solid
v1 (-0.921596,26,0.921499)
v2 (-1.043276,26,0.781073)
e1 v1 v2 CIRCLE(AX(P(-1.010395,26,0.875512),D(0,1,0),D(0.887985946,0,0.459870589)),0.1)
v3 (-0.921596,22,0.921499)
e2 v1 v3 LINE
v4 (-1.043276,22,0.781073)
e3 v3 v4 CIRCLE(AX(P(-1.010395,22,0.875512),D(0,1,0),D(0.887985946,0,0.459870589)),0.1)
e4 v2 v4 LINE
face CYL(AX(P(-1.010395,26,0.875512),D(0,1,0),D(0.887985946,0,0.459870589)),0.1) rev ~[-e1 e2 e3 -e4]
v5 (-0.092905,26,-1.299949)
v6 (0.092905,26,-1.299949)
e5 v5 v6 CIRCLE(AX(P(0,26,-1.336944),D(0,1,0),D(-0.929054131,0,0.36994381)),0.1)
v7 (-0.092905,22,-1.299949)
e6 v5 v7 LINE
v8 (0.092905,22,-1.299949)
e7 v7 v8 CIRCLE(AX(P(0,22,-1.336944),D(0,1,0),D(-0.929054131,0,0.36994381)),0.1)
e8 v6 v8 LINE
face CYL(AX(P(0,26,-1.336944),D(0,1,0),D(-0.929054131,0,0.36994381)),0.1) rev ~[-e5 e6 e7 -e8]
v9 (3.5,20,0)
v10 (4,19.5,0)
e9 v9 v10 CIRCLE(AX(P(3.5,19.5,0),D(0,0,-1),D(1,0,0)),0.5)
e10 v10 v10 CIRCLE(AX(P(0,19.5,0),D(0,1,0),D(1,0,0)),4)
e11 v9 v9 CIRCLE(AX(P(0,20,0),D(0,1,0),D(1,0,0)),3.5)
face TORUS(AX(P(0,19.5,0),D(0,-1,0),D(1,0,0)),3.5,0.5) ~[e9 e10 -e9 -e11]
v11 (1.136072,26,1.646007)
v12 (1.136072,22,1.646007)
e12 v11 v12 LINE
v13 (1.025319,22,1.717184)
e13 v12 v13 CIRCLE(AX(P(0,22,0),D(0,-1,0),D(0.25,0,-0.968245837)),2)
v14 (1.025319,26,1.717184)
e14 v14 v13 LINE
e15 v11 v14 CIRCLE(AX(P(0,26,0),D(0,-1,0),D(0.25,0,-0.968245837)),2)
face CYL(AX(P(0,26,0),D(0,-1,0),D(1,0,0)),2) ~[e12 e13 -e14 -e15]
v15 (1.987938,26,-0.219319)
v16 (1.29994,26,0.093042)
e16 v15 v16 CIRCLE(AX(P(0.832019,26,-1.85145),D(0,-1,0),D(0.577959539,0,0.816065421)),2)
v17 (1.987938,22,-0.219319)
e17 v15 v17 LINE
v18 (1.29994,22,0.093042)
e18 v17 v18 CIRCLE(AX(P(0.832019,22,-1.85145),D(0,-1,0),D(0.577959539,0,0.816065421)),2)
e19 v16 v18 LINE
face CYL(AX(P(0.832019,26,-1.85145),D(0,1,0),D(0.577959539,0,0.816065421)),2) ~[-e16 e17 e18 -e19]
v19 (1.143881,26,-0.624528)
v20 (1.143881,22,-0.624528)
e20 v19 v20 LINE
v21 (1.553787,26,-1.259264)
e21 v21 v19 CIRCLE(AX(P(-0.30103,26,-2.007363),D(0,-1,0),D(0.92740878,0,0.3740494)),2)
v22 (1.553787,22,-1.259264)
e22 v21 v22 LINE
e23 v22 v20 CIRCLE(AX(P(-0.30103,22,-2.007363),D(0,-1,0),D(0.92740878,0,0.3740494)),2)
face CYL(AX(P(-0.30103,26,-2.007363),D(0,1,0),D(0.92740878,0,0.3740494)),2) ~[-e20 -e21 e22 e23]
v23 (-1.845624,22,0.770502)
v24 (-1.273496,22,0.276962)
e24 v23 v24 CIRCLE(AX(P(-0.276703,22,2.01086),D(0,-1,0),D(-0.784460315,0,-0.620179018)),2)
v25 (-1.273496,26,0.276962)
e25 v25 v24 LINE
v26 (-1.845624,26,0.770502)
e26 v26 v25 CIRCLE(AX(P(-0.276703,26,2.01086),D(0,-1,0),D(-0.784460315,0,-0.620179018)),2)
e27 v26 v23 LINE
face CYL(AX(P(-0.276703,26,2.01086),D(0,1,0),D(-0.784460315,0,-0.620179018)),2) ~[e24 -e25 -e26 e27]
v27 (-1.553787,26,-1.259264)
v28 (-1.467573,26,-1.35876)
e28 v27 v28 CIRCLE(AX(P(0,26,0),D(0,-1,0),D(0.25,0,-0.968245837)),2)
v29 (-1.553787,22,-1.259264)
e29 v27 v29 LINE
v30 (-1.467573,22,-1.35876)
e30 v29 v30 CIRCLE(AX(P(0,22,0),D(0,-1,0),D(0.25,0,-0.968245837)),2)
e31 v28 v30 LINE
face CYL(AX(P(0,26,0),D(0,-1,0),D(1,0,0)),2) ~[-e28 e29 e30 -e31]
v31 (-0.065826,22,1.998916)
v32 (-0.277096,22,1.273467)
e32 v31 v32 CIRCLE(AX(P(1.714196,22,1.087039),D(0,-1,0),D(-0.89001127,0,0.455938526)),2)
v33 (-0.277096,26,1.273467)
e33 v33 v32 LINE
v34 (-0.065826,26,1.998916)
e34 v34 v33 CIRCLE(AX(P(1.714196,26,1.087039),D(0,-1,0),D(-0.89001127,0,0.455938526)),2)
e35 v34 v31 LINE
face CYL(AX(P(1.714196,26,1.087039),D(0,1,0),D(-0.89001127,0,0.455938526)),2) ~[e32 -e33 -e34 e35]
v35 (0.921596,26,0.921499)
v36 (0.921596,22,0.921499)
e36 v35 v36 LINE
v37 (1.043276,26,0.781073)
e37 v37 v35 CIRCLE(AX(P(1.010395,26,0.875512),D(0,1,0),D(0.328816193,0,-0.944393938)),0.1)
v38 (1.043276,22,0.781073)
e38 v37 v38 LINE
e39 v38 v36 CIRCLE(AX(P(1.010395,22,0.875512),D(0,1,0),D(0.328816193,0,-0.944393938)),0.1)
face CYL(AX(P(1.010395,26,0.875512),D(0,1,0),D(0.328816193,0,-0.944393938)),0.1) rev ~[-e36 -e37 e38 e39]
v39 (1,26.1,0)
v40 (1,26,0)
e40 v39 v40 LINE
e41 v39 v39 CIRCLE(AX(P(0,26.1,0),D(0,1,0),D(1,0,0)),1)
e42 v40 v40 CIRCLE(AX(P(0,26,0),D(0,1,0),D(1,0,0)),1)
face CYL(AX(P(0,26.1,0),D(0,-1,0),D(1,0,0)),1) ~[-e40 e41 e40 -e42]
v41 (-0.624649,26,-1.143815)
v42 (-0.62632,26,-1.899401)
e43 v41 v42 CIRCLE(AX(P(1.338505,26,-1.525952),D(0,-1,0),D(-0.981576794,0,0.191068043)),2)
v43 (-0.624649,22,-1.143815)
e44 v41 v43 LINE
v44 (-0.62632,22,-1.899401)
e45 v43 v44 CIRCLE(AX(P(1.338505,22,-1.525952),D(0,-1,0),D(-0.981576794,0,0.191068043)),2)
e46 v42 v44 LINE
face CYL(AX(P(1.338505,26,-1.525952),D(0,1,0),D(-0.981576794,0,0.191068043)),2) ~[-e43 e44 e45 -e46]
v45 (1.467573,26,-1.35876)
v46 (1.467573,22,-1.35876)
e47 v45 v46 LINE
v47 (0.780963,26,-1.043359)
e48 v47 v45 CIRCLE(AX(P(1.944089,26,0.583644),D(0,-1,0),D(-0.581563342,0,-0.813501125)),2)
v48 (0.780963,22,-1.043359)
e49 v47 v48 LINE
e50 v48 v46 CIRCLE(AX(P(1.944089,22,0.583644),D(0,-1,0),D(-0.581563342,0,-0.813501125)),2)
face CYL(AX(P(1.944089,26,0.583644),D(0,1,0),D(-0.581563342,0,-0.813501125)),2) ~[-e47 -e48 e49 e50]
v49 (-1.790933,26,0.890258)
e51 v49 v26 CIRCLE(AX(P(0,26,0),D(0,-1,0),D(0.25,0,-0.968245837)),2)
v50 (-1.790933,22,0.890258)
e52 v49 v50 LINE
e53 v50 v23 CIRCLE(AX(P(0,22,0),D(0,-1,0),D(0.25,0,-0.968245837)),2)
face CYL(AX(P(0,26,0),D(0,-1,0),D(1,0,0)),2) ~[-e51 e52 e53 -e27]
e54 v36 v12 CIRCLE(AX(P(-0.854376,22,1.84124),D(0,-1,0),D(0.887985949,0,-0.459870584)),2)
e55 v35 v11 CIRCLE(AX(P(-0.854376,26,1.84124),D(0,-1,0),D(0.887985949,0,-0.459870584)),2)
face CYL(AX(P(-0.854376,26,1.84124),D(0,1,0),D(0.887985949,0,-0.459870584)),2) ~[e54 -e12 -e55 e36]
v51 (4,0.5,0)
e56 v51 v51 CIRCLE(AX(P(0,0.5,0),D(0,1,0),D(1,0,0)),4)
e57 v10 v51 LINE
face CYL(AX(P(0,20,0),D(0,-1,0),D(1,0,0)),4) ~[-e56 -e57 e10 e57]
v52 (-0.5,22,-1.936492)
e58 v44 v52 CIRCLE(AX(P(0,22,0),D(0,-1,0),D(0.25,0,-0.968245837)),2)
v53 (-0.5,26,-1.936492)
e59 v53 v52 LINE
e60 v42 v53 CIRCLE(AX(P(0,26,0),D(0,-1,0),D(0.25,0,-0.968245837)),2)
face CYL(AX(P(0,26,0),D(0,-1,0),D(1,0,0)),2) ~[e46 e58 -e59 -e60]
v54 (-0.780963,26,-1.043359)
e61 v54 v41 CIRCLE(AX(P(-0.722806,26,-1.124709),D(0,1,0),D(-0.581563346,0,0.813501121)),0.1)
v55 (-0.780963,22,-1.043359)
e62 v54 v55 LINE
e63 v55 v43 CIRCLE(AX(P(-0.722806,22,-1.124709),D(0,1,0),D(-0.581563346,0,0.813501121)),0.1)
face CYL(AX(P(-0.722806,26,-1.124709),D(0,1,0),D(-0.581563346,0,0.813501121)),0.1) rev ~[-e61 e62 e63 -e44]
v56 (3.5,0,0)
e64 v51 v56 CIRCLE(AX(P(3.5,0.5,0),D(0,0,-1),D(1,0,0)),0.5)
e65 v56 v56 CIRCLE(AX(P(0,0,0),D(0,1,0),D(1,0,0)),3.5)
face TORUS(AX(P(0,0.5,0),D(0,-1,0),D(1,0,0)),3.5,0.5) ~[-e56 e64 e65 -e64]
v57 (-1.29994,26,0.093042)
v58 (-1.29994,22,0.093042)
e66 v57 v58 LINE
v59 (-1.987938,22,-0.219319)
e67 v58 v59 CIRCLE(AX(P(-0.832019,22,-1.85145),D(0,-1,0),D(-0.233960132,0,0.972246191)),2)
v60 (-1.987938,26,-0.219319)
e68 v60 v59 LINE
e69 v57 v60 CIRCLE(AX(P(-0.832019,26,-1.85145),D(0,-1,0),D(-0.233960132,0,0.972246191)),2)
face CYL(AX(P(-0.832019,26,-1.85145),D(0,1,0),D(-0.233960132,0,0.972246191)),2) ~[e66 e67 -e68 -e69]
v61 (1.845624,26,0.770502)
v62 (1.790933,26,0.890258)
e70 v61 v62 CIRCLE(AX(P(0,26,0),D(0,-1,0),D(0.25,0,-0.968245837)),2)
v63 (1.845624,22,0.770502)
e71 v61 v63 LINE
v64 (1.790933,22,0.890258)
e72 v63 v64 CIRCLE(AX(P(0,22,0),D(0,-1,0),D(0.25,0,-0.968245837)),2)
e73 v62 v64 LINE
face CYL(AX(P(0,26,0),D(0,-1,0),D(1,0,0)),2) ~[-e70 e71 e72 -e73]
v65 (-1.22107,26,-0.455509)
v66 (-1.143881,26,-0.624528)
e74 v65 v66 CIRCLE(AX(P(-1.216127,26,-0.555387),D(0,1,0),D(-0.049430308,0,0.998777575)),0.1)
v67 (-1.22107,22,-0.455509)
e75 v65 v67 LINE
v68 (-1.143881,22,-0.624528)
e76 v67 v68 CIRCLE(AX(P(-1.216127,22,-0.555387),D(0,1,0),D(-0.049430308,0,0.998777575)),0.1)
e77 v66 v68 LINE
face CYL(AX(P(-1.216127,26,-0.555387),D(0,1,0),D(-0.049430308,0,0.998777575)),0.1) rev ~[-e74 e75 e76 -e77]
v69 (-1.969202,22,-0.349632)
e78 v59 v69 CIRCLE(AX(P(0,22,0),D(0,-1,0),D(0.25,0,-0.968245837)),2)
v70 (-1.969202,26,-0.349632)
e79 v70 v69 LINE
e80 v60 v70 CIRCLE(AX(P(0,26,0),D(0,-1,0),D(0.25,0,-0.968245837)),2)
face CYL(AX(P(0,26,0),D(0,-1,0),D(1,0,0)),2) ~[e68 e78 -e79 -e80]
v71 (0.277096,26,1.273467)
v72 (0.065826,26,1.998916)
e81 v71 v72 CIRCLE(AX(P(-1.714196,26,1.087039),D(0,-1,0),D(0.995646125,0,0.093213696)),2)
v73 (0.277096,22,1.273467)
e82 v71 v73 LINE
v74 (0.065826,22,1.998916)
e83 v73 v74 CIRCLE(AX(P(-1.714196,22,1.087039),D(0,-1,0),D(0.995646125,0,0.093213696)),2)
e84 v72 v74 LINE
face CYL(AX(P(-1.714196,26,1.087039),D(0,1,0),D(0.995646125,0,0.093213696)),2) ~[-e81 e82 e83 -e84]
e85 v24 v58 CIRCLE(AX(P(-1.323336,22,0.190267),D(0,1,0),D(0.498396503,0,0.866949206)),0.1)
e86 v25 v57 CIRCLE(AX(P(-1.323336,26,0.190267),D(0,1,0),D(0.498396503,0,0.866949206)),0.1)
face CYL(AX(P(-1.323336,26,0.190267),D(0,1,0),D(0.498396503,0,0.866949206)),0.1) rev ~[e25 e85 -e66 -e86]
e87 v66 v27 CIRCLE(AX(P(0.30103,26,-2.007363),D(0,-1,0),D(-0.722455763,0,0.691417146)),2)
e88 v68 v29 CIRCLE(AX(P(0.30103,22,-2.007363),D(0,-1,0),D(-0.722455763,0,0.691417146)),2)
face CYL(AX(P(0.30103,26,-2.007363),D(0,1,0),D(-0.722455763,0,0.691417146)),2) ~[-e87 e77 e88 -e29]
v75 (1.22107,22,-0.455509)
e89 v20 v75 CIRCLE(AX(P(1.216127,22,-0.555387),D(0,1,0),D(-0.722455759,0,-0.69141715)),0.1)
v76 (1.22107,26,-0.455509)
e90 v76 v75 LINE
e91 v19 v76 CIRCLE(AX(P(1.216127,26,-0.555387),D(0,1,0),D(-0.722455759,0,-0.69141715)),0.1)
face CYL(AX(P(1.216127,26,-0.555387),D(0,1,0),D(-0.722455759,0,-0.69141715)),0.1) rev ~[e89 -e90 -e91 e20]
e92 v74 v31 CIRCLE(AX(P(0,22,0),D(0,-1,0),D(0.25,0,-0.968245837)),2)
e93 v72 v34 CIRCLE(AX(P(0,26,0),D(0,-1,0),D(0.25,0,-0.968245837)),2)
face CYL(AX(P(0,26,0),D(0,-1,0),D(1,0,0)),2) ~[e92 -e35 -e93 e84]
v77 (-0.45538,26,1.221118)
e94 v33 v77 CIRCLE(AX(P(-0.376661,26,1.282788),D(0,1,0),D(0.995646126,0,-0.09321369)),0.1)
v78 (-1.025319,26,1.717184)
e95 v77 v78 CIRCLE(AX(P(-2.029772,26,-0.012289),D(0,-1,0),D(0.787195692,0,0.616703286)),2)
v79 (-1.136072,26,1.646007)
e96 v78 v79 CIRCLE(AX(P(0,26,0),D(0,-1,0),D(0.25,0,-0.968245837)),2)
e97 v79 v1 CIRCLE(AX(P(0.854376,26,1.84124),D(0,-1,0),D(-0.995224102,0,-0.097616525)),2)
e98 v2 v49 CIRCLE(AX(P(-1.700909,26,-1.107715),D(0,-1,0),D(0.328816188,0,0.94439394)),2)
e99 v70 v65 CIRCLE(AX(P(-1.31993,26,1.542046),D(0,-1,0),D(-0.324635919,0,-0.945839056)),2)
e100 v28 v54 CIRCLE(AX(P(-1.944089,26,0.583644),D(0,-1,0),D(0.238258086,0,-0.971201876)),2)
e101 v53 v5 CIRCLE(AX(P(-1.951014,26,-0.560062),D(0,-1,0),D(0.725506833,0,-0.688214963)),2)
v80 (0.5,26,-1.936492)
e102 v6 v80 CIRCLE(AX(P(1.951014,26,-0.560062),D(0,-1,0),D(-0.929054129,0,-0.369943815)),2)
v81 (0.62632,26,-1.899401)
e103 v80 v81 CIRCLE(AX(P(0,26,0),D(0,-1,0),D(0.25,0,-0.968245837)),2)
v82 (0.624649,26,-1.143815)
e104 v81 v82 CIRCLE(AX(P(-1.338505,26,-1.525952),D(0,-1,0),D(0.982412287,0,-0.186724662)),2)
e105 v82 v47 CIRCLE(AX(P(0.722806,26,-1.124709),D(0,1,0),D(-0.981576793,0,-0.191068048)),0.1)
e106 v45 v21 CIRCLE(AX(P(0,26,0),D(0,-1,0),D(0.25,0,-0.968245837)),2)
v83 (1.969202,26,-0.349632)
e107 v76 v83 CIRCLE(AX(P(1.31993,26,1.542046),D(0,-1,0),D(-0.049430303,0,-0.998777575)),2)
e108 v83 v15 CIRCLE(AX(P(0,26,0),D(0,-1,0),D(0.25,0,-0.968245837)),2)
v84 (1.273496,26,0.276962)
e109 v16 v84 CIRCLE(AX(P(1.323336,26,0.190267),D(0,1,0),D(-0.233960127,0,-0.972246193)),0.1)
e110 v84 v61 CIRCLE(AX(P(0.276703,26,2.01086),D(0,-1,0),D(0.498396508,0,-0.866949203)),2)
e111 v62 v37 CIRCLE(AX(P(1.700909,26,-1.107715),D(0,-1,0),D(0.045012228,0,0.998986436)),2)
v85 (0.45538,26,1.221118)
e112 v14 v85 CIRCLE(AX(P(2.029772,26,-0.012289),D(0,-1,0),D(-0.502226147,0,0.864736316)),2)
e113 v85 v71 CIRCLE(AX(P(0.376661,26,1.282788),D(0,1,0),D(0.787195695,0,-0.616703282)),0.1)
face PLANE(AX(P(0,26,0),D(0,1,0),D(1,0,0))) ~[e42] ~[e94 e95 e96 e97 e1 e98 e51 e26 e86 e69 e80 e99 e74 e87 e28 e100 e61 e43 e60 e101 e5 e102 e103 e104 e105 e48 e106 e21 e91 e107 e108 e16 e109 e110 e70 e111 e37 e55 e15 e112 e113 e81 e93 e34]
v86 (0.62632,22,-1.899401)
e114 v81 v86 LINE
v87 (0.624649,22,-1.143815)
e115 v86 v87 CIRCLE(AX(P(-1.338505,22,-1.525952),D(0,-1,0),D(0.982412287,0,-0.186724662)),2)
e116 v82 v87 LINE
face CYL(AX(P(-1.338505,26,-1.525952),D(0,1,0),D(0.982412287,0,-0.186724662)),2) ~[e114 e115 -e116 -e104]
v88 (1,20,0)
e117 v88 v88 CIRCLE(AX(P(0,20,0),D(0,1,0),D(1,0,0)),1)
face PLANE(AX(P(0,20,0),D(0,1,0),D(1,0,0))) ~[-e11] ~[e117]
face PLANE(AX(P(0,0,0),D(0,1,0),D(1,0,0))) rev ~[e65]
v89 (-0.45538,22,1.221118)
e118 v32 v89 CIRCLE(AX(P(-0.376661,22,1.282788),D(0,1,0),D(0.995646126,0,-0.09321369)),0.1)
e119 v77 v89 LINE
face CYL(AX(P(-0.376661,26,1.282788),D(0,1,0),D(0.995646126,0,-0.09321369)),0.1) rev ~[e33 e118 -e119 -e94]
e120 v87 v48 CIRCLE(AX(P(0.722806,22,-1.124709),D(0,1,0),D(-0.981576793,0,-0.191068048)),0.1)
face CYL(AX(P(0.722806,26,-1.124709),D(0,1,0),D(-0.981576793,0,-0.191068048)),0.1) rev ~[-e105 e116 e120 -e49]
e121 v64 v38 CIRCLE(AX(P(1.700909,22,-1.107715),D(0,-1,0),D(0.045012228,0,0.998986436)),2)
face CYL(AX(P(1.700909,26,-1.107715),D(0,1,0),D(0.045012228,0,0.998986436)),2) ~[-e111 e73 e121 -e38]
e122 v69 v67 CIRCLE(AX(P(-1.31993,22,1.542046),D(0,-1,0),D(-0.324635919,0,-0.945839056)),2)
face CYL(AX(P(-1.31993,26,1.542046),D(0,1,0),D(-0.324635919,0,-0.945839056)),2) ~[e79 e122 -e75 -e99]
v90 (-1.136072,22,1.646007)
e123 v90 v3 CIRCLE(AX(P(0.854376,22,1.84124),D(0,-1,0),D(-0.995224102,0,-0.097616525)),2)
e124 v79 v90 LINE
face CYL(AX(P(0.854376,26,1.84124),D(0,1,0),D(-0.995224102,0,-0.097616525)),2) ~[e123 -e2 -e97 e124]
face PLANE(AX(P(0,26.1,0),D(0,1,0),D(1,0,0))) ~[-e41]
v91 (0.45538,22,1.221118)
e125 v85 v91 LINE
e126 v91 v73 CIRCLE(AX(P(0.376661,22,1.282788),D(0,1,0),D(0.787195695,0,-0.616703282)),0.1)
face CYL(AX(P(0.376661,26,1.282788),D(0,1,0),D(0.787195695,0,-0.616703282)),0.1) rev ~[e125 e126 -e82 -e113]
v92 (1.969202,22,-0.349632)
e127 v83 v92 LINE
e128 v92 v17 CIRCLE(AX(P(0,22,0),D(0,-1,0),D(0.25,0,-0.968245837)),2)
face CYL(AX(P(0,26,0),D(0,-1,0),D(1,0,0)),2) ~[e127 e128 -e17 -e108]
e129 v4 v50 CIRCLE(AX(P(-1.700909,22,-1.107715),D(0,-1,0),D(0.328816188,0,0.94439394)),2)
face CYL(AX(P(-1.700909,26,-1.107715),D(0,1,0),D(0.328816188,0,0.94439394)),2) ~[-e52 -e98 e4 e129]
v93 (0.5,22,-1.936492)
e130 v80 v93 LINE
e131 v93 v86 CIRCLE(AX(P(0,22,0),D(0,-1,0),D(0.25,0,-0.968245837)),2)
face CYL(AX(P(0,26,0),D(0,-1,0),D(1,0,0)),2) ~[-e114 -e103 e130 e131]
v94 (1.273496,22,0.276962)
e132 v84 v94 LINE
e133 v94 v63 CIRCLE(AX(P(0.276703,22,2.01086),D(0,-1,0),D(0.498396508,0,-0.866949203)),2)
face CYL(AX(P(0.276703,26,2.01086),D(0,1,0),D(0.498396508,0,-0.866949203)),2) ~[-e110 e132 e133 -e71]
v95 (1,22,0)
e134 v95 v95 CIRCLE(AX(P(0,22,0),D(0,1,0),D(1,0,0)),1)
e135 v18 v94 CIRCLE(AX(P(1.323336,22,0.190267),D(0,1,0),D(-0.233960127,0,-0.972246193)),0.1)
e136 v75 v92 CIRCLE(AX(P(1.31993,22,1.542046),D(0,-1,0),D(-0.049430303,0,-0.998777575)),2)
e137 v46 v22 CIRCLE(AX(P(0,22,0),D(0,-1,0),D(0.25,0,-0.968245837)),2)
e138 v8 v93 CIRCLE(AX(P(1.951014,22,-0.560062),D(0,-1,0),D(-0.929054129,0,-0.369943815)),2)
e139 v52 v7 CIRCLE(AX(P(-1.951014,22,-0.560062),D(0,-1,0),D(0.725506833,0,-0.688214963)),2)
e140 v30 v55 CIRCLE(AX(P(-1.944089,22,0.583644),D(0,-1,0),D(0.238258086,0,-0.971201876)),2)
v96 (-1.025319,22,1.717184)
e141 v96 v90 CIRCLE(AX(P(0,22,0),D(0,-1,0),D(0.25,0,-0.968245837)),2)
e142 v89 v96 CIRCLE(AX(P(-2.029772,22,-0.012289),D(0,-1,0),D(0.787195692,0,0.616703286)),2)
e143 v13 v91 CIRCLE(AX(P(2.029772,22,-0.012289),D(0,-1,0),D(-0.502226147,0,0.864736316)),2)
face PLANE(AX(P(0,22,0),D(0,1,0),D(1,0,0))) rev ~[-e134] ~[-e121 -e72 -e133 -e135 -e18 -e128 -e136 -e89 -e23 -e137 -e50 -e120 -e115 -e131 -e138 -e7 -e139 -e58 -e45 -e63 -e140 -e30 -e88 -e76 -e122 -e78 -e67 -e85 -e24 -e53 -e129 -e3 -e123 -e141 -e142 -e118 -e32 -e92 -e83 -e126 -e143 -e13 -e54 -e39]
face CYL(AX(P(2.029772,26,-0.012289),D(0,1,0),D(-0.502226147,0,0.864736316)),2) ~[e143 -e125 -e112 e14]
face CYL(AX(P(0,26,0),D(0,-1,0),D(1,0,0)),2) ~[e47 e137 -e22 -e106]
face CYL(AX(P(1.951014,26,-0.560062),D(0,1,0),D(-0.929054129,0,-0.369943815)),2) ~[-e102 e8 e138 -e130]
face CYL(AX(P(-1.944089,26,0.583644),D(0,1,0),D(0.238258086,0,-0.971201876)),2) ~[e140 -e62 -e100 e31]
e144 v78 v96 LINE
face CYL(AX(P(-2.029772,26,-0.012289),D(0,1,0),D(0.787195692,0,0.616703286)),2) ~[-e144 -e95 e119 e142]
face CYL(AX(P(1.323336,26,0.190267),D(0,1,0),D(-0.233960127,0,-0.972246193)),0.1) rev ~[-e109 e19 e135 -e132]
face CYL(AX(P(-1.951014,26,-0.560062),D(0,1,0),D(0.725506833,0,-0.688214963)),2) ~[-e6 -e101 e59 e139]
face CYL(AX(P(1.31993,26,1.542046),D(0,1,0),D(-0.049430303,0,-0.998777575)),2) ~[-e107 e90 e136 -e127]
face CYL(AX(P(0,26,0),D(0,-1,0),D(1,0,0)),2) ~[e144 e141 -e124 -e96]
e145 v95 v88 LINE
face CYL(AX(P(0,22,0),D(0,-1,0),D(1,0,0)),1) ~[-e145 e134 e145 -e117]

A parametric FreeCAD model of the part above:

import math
import FreeCAD as App
import Part
import Sketcher

V = App.Vector


def edges_at(feature, points):
    """Names of the edges that pass closest to the given points."""
    edges = feature.Shape.Edges
    near = lambda p: min(range(len(edges)), key=lambda i: edges[i].distToShape(Part.Vertex(*p))[0])
    return sorted({f"Edge{near(p) + 1}" for p in points})

doc = App.newDocument("Part")
body = doc.addObject("PartDesign::Body", "Body")

sketch1 = body.newObject("Sketcher::SketchObject", "Sketch")
sketch1.AttachmentSupport = (doc.getObject("XY_Plane"), [""])
sketch1.MapMode = "FlatFace"
sketch1.addGeometry([
    Part.LineSegment(V(0, 26.1, 0), V(0, 0, 0)),
    Part.LineSegment(V(0, 0, 0), V(4, 0, 0)),
    Part.LineSegment(V(4, 0, 0), V(4, 20, 0)),
    Part.LineSegment(V(4, 20, 0), V(1, 20, 0)),
    Part.LineSegment(V(1, 20, 0), V(1, 22, 0)),
    Part.LineSegment(V(1, 22, 0), V(2, 22, 0)),
    Part.LineSegment(V(2, 22, 0), V(2, 26, 0)),
    Part.LineSegment(V(2, 26, 0), V(1, 26, 0)),
    Part.LineSegment(V(1, 26, 0), V(1, 26.1, 0)),
    Part.LineSegment(V(1, 26.1, 0), V(0, 26.1, 0)),
], False)
sketch1.addConstraint([
    Sketcher.Constraint("Coincident", 0, 2, 1, 1),
    Sketcher.Constraint("Coincident", 1, 2, 2, 1),
    Sketcher.Constraint("Coincident", 2, 2, 3, 1),
    Sketcher.Constraint("Coincident", 3, 2, 4, 1),
    Sketcher.Constraint("Coincident", 4, 2, 5, 1),
    Sketcher.Constraint("Coincident", 5, 2, 6, 1),
    Sketcher.Constraint("Coincident", 6, 2, 7, 1),
    Sketcher.Constraint("Coincident", 7, 2, 8, 1),
    Sketcher.Constraint("Coincident", 8, 2, 9, 1),
    Sketcher.Constraint("Coincident", 9, 2, 0, 1),
    Sketcher.Constraint("Vertical", 0),
    Sketcher.Constraint("Horizontal", 1),
    Sketcher.Constraint("Vertical", 2),
    Sketcher.Constraint("Horizontal", 3),
    Sketcher.Constraint("Vertical", 4),
    Sketcher.Constraint("Horizontal", 5),
    Sketcher.Constraint("Vertical", 6),
    Sketcher.Constraint("Horizontal", 7),
    Sketcher.Constraint("Vertical", 8),
    Sketcher.Constraint("Horizontal", 9),
    Sketcher.Constraint("Coincident", 0, 2, -1, 1),
    Sketcher.Constraint("Vertical", 4, 2, 7, 2),
    Sketcher.Constraint("Equal", 7, 9),
    Sketcher.Constraint("Equal", 1, 6),
    Sketcher.Constraint("DistanceX", 1, 1, 1, 2, 4.0),
    Sketcher.Constraint("DistanceX", 3, 2, 3, 1, 3.0),
    Sketcher.Constraint("DistanceY", 2, 1, 2, 2, 20.0),
    Sketcher.Constraint("DistanceY", 4, 1, 4, 2, 2.0),
    Sketcher.Constraint("DistanceY", 0, 2, 0, 1, 26.1),
])
revolution = body.newObject("PartDesign::Revolution", "Revolution")
revolution.Profile = sketch1
revolution.ReferenceAxis = (sketch1, ["V_Axis"])
revolution.Angle = 360
doc.recompute()

fillet = body.newObject("PartDesign::Fillet", "Fillet")
fillet.Base = (revolution, edges_at(revolution, [(-4, 20, 0), (-4, 0, 0)]))
fillet.Radius = 0.5

sketch2 = body.newObject("Sketcher::SketchObject", "Sketch001")
sketch2.AttachmentSupport = (doc.getObject("XZ_Plane"), [""])
sketch2.MapMode = "FlatFace"
sketch2.AttachmentOffset = App.Placement(V(0, 0, -26), App.Rotation())
sketch2.addGeometry([
    Part.ArcOfCircle(Part.Circle(V(0, 0, 0), V(0, 0, 1), 2), math.radians(-104), math.radians(-76)),
    Part.ArcOfCircle(Part.Circle(V(-1.95, -0.56, 0), V(0, 0, 1), 2), math.radians(-43), math.radians(-22)),
    Part.ArcOfCircle(Part.Circle(V(0, -1.34, 0), V(0, 0, 1), 0.1), math.radians(22), math.radians(158)),
    Part.ArcOfCircle(Part.Circle(V(1.95, -0.56, 0), V(0, 0, 1), 2), math.radians(-158), math.radians(-137)),
], False)
sketch2.addConstraint([
    Sketcher.Constraint("Coincident", 0, 1, 1, 1),
    Sketcher.Constraint("Tangent", 1, 2, 2, 2),
    Sketcher.Constraint("Tangent", 2, 1, 3, 1),
    Sketcher.Constraint("Coincident", 3, 2, 0, 2),
    Sketcher.Constraint("Coincident", 0, 3, -1, 1),
    Sketcher.Constraint("Equal", 0, 1),
    Sketcher.Constraint("Equal", 1, 3),
    Sketcher.Constraint("Symmetric", 1, 3, 3, 3, -2),
    Sketcher.Constraint("Radius", 0, 2.0),
    Sketcher.Constraint("Radius", 2, 0.1),
    Sketcher.Constraint("DistanceX", 0, 1, 3, 2, 1.0),
    Sketcher.Constraint("DistanceY", 1, 3, -1, 1, 0.560062),
])
pocket1 = body.newObject("PartDesign::Pocket", "Pocket")
pocket1.Profile = sketch2
pocket1.Length = 4
pocket1.Reversed = True
doc.recompute()

polarpattern = body.newObject("PartDesign::PolarPattern", "PolarPattern")
polarpattern.Originals = [pocket1]
polarpattern.Axis = (doc.getObject("Y_Axis"), [""])
polarpattern.Angle = 360
polarpattern.Occurrences = 11
body.Tip = polarpattern

doc.recompute()
